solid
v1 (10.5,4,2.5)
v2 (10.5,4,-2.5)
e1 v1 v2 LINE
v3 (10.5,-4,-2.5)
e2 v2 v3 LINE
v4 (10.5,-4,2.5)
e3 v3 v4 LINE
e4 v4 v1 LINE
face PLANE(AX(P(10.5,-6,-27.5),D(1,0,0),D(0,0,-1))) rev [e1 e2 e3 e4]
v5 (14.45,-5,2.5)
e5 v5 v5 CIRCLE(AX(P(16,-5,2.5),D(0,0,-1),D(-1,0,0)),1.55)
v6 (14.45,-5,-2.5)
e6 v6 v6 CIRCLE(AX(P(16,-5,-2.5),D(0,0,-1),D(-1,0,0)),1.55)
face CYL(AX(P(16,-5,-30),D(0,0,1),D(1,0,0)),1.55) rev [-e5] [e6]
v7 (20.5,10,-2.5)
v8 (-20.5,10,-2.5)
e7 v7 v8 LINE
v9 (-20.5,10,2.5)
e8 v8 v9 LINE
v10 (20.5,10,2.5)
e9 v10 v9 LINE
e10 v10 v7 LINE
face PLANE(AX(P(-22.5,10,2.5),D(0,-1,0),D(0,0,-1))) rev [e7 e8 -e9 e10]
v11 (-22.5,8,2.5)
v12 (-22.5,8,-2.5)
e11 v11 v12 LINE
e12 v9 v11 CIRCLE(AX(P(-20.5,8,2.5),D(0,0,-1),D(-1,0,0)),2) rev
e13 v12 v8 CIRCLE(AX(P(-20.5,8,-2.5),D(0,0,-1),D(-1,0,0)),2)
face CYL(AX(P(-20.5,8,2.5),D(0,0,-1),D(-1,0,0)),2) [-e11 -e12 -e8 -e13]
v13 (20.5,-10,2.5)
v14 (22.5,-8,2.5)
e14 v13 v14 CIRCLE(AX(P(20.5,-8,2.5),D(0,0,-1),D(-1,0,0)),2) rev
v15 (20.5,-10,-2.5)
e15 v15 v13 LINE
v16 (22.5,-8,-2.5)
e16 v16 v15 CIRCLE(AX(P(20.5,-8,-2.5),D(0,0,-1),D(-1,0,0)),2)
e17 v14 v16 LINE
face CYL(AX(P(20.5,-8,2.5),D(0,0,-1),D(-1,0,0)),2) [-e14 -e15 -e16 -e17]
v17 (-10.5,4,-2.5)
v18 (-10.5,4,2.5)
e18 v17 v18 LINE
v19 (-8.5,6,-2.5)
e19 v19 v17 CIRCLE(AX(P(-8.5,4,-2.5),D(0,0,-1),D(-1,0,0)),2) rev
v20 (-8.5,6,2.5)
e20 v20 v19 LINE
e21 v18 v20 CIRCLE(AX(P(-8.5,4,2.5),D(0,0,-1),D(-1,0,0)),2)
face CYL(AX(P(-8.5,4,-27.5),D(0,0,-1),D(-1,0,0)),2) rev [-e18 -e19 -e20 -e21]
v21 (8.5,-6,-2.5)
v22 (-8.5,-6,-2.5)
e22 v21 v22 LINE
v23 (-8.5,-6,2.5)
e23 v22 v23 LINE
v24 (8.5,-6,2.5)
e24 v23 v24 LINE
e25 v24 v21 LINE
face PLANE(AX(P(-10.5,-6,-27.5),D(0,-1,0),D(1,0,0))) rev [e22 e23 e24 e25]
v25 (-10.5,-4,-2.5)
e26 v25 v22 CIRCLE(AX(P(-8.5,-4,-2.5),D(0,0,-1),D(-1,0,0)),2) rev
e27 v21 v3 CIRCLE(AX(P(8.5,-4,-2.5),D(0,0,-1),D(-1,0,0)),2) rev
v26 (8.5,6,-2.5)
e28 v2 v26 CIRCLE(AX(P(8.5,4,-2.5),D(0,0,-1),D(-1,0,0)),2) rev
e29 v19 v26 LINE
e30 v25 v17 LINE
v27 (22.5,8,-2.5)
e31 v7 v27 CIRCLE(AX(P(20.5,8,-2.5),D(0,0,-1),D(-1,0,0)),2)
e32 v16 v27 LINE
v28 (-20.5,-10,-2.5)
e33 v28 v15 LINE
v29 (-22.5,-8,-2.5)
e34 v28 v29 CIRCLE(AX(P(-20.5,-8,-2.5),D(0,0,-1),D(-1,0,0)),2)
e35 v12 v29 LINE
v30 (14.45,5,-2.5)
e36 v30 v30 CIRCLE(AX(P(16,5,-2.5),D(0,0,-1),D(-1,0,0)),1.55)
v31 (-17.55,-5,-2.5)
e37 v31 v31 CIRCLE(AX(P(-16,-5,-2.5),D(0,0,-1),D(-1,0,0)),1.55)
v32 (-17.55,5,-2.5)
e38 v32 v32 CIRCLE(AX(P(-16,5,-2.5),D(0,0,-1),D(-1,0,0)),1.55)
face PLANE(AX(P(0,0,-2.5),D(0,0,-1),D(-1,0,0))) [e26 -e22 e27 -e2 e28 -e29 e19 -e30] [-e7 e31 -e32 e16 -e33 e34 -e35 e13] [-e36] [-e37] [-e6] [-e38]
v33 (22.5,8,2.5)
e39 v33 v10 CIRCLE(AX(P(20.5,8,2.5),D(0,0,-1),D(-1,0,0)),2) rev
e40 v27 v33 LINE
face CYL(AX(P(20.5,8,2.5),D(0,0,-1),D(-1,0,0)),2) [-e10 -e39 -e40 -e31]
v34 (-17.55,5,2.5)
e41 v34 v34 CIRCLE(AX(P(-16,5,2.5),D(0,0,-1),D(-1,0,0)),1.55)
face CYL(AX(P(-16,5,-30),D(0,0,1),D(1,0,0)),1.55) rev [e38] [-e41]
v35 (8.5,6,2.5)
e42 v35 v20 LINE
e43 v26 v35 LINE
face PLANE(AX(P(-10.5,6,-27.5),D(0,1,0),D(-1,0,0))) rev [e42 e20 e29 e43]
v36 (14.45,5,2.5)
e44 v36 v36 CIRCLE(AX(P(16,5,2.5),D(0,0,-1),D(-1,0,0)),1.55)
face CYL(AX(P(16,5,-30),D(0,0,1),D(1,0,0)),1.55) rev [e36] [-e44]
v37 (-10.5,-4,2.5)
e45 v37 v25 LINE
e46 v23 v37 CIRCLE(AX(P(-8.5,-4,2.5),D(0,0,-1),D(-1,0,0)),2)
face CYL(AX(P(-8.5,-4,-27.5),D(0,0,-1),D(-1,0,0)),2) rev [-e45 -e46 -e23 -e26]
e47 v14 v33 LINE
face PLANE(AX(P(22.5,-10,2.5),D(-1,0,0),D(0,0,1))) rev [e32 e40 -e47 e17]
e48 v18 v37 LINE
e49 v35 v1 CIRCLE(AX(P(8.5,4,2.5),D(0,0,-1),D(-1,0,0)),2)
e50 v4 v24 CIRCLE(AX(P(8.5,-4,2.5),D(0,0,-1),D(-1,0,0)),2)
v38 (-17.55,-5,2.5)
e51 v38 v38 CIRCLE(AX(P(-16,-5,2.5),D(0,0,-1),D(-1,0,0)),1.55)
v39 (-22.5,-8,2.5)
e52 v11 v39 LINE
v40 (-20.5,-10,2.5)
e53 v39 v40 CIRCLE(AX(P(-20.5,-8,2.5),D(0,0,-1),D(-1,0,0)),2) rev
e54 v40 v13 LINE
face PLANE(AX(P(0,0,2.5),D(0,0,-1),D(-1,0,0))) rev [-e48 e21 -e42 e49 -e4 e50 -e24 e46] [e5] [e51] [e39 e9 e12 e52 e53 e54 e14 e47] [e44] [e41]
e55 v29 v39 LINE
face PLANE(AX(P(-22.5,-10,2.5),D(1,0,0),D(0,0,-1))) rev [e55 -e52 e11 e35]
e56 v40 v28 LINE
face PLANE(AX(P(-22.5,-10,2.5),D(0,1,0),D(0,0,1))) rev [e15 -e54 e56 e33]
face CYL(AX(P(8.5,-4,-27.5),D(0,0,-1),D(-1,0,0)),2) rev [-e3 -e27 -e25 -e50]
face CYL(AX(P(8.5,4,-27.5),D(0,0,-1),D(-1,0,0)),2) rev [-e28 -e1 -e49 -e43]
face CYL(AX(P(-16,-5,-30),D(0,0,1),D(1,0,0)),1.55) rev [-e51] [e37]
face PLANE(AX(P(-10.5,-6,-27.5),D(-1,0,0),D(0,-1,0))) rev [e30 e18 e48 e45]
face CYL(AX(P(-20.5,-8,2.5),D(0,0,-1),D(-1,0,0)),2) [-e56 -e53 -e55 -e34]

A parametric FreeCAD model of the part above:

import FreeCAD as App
import Part
import Sketcher
from FreeCAD import Vector


def edges_at(feature, points):
    """Names of the edges that pass closest to the given points."""
    edges = feature.Shape.Edges
    near = lambda p: min(range(len(edges)), key=lambda i: edges[i].distToShape(Part.Vertex(*p))[0])
    return sorted({f"Edge{near(p) + 1}" for p in points})

doc = App.newDocument("Part")
body = doc.addObject("PartDesign::Body", "Body")

# Sketch on XY plane
sketch1 = body.newObject("Sketcher::SketchObject", "Sketch")
sketch1.AttachmentSupport = (doc.getObject("XY_Plane"), [""])
sketch1.MapMode = "FlatFace"
sketch1.addGeometry([
    Part.LineSegment(Vector(-22, 10, 0), Vector(-22, -10, 0)),
    Part.LineSegment(Vector(-22, -10, 0), Vector(22, -10, 0)),
    Part.LineSegment(Vector(22, -10, 0), Vector(22, 10, 0)),
    Part.LineSegment(Vector(22, 10, 0), Vector(-22, 10, 0)),
], False)
sketch1.addConstraint([
    Sketcher.Constraint("Coincident", 0, 2, 1, 1),
    Sketcher.Constraint("Coincident", 1, 2, 2, 1),
    Sketcher.Constraint("Coincident", 2, 2, 3, 1),
    Sketcher.Constraint("Coincident", 3, 2, 0, 1),
    Sketcher.Constraint("Vertical", 0),
    Sketcher.Constraint("Horizontal", 1),
    Sketcher.Constraint("Vertical", 2),
    Sketcher.Constraint("Horizontal", 3),
    Sketcher.Constraint("Symmetric", 0, 2, 2, 2, -1, 1),
    Sketcher.Constraint("DistanceX", 1, 1, 1, 2, 45.0),
    Sketcher.Constraint("DistanceY", 0, 2, 0, 1, 20.0),
])
pad1 = body.newObject("PartDesign::Pad", "Pad")
pad1.Profile = sketch1
pad1.Length = 5
pad1.Midplane = True

# Sketch on XY plane
sketch2 = body.newObject("Sketcher::SketchObject", "Sketch001")
sketch2.AttachmentSupport = (doc.getObject("XY_Plane"), [""])
sketch2.MapMode = "FlatFace"
sketch2.AttachmentOffset = App.Placement(Vector(0, 0, 2.5), App.Rotation())
sketch2.addGeometry([
    Part.Circle(Vector(16, 5, 0), Vector(0, 0, 1), 1.6),
    Part.Circle(Vector(-16, 5, 0), Vector(0, 0, 1), 1.6),
    Part.Circle(Vector(-16, -5, 0), Vector(0, 0, 1), 1.6),
    Part.Circle(Vector(16, -5, 0), Vector(0, 0, 1), 1.6),
], False)
sketch2.addConstraint([
    Sketcher.Constraint("Equal", 0, 1),
    Sketcher.Constraint("Equal", 1, 2),
    Sketcher.Constraint("Equal", 2, 3),
    Sketcher.Constraint("Symmetric", 0, 3, 2, 3, -1, 1),
    Sketcher.Constraint("Symmetric", 1, 3, 3, 3, -1, 1),
    Sketcher.Constraint("Symmetric", 0, 3, 1, 3, -2),
    Sketcher.Constraint("Diameter", 0, 3.1),
    Sketcher.Constraint("DistanceX", -1, 1, 0, 3, 16.0),
    Sketcher.Constraint("DistanceY", -1, 1, 0, 3, 5.0),
])
pocket1 = body.newObject("PartDesign::Pocket", "Pocket")
pocket1.Profile = sketch2
pocket1.Length = 65
pocket1.Midplane = True
doc.recompute()

fillet = body.newObject("PartDesign::Fillet", "Fillet")
fillet.Base = (pocket1, edges_at(pocket1, [
    (22.5, -10, 0),
    (-22.5, -10, 0),
    (-22.5, 10, 0),
    (22.5, 10, 0),
]))
fillet.Radius = 2

# Sketch on XY plane
sketch3 = body.newObject("Sketcher::SketchObject", "Sketch002")
sketch3.AttachmentSupport = (doc.getObject("XY_Plane"), [""])
sketch3.MapMode = "FlatFace"
sketch3.AttachmentOffset = App.Placement(Vector(0, 0, 2.5), App.Rotation())
sketch3.addGeometry([
    Part.LineSegment(Vector(-10, 6, 0), Vector(-10, -6, 0)),
    Part.LineSegment(Vector(-10, -6, 0), Vector(10, -6, 0)),
    Part.LineSegment(Vector(10, -6, 0), Vector(10, 6, 0)),
    Part.LineSegment(Vector(10, 6, 0), Vector(-10, 6, 0)),
], False)
sketch3.addConstraint([
    Sketcher.Constraint("Coincident", 0, 2, 1, 1),
    Sketcher.Constraint("Coincident", 1, 2, 2, 1),
    Sketcher.Constraint("Coincident", 2, 2, 3, 1),
    Sketcher.Constraint("Coincident", 3, 2, 0, 1),
    Sketcher.Constraint("Vertical", 0),
    Sketcher.Constraint("Horizontal", 1),
    Sketcher.Constraint("Vertical", 2),
    Sketcher.Constraint("Horizontal", 3),
    Sketcher.Constraint("Symmetric", 0, 2, 2, 2, -1, 1),
    Sketcher.Constraint("DistanceX", 1, 1, 1, 2, 21.0),
    Sketcher.Constraint("DistanceY", 0, 2, 0, 1, 12.0),
])
pocket2 = body.newObject("PartDesign::Pocket", "Pocket001")
pocket2.Profile = sketch3
pocket2.Length = 30
doc.recompute()

fillet2 = body.newObject("PartDesign::Fillet", "Fillet001")
fillet2.Base = (pocket2, edges_at(pocket2, [
    (10.5, 6, 0),
    (10.5, -6, 0),
    (-10.5, -6, 0),
    (-10.5, 6, 0),
]))
fillet2.Radius = 2

doc.recompute()
